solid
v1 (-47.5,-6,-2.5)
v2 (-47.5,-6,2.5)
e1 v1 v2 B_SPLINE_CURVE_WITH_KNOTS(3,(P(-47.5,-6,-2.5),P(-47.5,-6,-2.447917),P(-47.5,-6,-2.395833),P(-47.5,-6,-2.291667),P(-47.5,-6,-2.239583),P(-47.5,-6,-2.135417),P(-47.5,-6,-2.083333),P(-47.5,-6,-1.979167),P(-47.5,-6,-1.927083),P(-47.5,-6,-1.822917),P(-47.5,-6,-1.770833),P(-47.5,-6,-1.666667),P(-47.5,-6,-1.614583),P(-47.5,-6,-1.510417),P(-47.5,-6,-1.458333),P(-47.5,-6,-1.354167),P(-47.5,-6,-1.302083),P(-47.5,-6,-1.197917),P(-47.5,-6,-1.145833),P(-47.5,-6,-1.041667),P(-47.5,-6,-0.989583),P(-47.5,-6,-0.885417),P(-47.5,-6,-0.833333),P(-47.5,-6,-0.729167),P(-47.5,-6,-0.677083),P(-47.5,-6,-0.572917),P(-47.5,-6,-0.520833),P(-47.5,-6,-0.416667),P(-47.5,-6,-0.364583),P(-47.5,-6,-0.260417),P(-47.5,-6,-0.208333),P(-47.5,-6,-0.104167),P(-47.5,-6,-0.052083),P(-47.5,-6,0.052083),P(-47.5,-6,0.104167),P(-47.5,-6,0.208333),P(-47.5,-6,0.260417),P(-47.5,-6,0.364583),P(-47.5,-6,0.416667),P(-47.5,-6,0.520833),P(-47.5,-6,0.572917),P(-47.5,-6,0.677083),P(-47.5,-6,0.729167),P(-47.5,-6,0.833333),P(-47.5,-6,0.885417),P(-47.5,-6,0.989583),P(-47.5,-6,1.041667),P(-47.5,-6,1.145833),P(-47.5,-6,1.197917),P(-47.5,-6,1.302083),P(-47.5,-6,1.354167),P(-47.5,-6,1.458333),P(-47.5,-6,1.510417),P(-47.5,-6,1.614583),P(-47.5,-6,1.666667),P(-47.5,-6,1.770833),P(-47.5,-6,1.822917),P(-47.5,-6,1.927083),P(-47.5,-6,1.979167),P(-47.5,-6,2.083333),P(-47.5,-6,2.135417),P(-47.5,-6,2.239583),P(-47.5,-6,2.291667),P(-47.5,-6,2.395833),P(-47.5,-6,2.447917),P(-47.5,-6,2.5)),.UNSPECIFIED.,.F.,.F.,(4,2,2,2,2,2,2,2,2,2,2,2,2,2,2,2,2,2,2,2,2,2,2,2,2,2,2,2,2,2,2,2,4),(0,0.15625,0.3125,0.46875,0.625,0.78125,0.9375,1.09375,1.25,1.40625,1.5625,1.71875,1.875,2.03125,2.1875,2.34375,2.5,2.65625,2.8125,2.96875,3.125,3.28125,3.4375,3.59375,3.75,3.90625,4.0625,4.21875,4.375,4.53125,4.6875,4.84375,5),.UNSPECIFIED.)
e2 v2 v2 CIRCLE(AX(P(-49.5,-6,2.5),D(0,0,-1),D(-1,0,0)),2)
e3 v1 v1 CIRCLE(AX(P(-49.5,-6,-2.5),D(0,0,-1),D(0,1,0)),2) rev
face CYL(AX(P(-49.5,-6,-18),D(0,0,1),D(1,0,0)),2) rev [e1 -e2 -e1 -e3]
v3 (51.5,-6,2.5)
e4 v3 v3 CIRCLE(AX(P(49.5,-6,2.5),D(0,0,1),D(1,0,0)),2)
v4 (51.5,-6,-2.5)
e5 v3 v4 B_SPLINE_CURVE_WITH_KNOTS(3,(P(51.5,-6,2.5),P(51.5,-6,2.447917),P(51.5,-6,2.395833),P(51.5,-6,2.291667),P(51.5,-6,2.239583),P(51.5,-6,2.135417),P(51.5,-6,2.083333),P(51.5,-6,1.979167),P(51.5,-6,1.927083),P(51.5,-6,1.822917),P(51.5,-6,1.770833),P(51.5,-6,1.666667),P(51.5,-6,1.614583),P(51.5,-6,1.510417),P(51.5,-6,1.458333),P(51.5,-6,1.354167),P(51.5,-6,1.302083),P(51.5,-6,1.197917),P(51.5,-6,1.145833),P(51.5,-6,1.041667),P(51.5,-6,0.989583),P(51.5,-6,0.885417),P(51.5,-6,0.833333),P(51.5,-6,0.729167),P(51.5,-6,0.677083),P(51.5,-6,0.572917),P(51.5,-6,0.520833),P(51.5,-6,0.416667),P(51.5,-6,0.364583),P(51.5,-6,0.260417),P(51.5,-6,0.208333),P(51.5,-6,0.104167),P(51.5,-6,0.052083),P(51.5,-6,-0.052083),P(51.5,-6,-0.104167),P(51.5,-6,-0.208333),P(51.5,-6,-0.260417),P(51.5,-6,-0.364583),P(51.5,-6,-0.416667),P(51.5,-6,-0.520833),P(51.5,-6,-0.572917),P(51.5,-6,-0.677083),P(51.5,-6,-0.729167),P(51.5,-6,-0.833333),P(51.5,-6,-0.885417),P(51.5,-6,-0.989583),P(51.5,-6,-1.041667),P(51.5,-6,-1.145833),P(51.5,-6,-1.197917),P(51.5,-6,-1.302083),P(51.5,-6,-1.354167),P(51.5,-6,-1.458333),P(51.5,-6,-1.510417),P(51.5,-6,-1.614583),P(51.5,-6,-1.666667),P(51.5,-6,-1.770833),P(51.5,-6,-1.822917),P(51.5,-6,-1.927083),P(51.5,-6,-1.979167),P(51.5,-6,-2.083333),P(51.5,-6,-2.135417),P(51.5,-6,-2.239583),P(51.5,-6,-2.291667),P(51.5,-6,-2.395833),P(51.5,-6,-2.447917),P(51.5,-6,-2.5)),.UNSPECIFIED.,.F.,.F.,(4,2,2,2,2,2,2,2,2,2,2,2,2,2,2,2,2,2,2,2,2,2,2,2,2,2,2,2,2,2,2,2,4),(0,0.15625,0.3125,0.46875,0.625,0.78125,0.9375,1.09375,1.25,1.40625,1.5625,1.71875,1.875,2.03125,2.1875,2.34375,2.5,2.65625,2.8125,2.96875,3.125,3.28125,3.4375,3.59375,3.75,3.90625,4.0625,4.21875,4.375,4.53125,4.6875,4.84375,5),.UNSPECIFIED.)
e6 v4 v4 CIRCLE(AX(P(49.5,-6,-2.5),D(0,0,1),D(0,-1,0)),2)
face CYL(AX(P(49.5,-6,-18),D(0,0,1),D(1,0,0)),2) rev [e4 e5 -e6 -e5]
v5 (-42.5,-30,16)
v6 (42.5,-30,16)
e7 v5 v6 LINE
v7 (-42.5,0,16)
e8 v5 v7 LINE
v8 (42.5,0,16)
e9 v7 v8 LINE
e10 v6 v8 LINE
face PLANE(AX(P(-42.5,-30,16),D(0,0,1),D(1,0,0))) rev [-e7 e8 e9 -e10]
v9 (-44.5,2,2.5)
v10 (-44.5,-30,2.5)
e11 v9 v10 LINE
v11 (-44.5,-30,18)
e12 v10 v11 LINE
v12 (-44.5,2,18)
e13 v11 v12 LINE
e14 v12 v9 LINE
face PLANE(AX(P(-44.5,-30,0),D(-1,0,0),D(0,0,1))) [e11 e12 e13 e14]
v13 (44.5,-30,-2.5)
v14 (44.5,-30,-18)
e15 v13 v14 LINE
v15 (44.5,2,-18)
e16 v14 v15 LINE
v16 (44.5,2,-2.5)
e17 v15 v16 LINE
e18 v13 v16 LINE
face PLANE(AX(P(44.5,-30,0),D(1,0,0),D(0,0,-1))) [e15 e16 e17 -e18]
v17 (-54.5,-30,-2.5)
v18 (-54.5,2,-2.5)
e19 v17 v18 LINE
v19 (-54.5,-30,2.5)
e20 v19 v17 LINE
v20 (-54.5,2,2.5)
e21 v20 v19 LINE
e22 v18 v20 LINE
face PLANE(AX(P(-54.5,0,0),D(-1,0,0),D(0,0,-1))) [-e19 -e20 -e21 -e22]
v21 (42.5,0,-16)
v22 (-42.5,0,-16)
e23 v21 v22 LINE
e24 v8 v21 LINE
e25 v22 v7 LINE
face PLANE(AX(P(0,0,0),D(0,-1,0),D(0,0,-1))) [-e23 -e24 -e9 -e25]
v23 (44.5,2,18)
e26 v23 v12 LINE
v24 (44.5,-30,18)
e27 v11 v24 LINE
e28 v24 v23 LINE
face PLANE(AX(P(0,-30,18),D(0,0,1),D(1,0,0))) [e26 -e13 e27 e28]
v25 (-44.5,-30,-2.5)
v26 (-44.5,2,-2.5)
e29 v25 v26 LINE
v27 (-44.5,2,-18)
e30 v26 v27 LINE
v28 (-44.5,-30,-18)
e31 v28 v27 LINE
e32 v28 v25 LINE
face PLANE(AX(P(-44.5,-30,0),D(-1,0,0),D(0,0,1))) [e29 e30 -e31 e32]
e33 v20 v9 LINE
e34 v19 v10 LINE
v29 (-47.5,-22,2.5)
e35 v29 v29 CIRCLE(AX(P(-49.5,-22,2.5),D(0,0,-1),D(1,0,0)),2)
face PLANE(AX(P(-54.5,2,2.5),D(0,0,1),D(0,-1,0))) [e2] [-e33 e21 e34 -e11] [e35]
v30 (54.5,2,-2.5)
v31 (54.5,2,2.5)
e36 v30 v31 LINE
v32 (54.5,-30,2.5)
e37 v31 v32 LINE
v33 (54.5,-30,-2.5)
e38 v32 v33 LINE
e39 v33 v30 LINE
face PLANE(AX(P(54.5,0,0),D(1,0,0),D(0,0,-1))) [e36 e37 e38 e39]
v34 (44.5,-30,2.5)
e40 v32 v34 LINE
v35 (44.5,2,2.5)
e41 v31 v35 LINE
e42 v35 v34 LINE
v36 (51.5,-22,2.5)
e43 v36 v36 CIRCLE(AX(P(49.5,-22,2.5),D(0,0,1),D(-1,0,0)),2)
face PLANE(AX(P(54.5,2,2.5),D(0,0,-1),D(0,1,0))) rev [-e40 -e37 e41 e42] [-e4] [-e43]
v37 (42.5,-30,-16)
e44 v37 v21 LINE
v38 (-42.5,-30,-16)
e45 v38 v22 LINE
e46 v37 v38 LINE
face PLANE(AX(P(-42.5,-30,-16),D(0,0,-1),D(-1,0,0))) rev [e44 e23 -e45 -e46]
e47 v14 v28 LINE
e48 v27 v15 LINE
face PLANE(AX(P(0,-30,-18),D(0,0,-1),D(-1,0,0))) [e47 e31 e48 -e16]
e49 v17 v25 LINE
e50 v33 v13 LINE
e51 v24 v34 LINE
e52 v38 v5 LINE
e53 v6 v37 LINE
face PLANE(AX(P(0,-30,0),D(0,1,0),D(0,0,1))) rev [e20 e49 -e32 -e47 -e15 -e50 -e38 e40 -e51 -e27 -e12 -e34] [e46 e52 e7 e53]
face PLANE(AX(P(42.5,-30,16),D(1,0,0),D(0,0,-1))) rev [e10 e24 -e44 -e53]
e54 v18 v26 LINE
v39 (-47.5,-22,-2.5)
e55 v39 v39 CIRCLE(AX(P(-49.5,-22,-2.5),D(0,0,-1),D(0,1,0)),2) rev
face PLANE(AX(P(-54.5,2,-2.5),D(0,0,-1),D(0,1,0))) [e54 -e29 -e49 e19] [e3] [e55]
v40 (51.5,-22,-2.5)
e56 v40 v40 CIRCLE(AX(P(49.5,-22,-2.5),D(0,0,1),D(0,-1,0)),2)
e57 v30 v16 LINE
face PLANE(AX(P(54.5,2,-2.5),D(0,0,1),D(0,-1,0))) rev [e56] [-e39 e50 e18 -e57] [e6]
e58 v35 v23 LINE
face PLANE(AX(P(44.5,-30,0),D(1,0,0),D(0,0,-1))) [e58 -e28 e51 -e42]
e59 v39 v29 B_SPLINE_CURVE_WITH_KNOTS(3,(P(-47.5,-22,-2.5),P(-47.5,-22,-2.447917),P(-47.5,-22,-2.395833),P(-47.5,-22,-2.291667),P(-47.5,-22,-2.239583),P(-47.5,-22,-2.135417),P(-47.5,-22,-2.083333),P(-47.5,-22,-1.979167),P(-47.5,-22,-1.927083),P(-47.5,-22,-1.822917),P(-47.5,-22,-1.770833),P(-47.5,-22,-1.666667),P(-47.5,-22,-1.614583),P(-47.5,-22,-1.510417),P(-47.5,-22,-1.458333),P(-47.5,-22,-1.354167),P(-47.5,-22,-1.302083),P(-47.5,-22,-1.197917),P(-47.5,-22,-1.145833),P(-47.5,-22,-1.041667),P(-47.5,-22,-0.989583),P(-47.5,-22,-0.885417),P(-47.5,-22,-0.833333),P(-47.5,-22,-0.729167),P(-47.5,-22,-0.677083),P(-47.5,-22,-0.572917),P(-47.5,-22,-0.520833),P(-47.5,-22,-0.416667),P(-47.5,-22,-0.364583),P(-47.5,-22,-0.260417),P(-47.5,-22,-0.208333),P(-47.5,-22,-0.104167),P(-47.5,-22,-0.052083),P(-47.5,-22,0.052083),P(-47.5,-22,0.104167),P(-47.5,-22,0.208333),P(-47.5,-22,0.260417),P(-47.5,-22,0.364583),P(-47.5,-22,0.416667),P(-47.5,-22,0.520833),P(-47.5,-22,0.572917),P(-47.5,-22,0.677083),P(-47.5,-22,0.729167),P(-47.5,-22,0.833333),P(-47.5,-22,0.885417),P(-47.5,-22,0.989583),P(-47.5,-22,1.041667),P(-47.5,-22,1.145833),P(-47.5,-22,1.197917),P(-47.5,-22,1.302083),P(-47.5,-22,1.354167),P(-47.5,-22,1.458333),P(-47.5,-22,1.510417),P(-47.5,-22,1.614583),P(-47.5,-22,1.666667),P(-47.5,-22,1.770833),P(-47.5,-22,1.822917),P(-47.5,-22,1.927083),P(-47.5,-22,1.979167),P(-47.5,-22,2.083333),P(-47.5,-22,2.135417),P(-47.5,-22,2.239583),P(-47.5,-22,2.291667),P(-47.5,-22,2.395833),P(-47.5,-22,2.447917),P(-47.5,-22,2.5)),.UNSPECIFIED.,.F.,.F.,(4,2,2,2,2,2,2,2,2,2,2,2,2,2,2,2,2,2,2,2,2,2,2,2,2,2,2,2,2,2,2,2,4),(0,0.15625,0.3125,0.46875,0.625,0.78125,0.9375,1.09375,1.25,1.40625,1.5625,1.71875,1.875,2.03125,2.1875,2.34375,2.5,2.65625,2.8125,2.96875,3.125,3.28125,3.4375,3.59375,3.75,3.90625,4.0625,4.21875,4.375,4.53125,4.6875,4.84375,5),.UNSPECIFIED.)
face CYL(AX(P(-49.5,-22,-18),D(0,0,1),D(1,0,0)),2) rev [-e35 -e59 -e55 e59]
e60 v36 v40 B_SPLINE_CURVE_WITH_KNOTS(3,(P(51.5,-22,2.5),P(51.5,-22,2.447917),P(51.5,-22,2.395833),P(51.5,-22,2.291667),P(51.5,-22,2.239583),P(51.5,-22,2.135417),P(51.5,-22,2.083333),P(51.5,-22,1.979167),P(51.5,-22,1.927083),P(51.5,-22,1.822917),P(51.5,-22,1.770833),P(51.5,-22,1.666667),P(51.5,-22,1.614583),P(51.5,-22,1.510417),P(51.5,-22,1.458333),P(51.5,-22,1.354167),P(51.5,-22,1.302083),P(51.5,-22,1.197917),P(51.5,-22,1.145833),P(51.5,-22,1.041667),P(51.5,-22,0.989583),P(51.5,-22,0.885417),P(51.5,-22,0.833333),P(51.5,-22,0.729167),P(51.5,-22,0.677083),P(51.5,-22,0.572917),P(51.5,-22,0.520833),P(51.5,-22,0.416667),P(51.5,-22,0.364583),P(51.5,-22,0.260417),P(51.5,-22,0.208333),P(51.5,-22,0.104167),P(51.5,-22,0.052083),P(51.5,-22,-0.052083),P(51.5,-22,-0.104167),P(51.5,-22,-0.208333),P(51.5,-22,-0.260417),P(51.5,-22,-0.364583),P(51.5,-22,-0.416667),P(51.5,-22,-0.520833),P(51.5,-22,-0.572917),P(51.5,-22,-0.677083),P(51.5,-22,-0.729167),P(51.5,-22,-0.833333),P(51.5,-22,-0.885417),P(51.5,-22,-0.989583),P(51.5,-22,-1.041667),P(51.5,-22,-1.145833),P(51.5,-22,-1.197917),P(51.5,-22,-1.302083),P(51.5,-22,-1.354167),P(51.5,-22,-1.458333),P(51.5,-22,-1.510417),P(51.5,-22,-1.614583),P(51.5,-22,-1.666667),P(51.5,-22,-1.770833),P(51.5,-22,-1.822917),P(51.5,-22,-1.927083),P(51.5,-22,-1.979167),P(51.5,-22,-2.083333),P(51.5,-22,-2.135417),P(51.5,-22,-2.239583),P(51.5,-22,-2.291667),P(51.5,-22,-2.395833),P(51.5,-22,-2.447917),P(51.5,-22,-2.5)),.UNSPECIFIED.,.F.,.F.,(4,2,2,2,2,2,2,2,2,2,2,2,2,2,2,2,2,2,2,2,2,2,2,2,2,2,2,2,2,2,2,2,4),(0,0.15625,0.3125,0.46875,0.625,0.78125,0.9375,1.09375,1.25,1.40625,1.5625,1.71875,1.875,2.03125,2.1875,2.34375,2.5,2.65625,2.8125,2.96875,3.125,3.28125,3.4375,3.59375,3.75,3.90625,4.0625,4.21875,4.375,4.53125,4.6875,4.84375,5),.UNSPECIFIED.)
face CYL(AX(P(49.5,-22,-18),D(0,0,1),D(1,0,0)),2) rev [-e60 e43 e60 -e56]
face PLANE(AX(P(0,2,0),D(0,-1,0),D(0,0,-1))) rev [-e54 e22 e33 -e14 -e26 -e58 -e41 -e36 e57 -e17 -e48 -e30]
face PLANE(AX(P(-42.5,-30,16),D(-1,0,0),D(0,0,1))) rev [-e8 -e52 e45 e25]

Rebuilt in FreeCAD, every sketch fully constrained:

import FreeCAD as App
import Part
import Sketcher
from FreeCAD import Vector
Q = App.Units.Quantity

doc = App.newDocument("Part")
body = doc.addObject("PartDesign::Body", "Body")

# Sketch on XZ plane
sketch1 = body.newObject("Sketcher::SketchObject", "Sketch")
sketch1.AttachmentSupport = (doc.getObject("XZ_Plane"), [""])
sketch1.MapMode = "FlatFace"
sketch1.addGeometry([
    Part.LineSegment(Vector(-42.5, -16, 0), Vector(-42.5, 16, 0)),
    Part.LineSegment(Vector(-42.5, 16, 0), Vector(42.5, 16, 0)),
    Part.LineSegment(Vector(42.5, 16, 0), Vector(42.5, -16, 0)),
    Part.LineSegment(Vector(42.5, -16, 0), Vector(-42.5, -16, 0)),
], False)
sketch1.addConstraint([
    Sketcher.Constraint("Coincident", 0, 2, 1, 1),
    Sketcher.Constraint("Coincident", 1, 2, 2, 1),
    Sketcher.Constraint("Coincident", 2, 2, 3, 1),
    Sketcher.Constraint("Coincident", 3, 2, 0, 1),
    Sketcher.Constraint("Vertical", 0),
    Sketcher.Constraint("Horizontal", 1),
    Sketcher.Constraint("Vertical", 2),
    Sketcher.Constraint("Horizontal", 3),
    Sketcher.Constraint("Symmetric", 0, 2, 2, 2, -1, 1),
    Sketcher.Constraint("DistanceX", 1, 1, 1, 2, Q("85 mm")),
    Sketcher.Constraint("DistanceY", 0, 1, 0, 2, Q("32 mm")),
])
pad1 = body.newObject("PartDesign::Pad", "Pad")
pad1.Profile = sketch1
pad1.Length = 2
pad1.Reversed = True

# Sketch on XZ plane
sketch2 = body.newObject("Sketcher::SketchObject", "Sketch001")
sketch2.AttachmentSupport = (doc.getObject("XZ_Plane"), [""])
sketch2.MapMode = "FlatFace"
sketch2.addGeometry([
    Part.LineSegment(Vector(-44.5, -18, 0), Vector(-44.5, 18, 0)),  # 0
    Part.LineSegment(Vector(-44.5, 18, 0), Vector(44.5, 18, 0)),  # 1
    Part.LineSegment(Vector(44.5, 18, 0), Vector(44.5, -18, 0)),  # 2
    Part.LineSegment(Vector(44.5, -18, 0), Vector(-44.5, -18, 0)),  # 3
    Part.LineSegment(Vector(42.5, 16, 0), Vector(-42.5, 16, 0)),  # 4
    Part.LineSegment(Vector(-42.5, 16, 0), Vector(-42.5, -16, 0)),  # 5
    Part.LineSegment(Vector(-42.5, -16, 0), Vector(42.5, -16, 0)),  # 6
    Part.LineSegment(Vector(42.5, -16, 0), Vector(42.5, 16, 0)),  # 7
], False)
sketch2.addConstraint([
    Sketcher.Constraint("Coincident", 0, 2, 1, 1),
    Sketcher.Constraint("Coincident", 1, 2, 2, 1),
    Sketcher.Constraint("Coincident", 2, 2, 3, 1),
    Sketcher.Constraint("Coincident", 3, 2, 0, 1),
    Sketcher.Constraint("Coincident", 4, 2, 5, 1),
    Sketcher.Constraint("Coincident", 5, 2, 6, 1),
    Sketcher.Constraint("Coincident", 6, 2, 7, 1),
    Sketcher.Constraint("Coincident", 7, 2, 4, 1),
    Sketcher.Constraint("Vertical", 0),
    Sketcher.Constraint("Horizontal", 1),
    Sketcher.Constraint("Vertical", 2),
    Sketcher.Constraint("Horizontal", 3),
    Sketcher.Constraint("Horizontal", 4),
    Sketcher.Constraint("Vertical", 5),
    Sketcher.Constraint("Horizontal", 6),
    Sketcher.Constraint("Vertical", 7),
    Sketcher.Constraint("Symmetric", 0, 2, 2, 2, -1, 1),
    Sketcher.Constraint("Symmetric", 4, 2, 6, 2, -1, 1),
    Sketcher.Constraint("DistanceX", 1, 1, 1, 2, Q("89 mm")),
    Sketcher.Constraint("DistanceX", 4, 2, 4, 1, Q("85 mm")),
    Sketcher.Constraint("DistanceY", 0, 1, 0, 2, Q("36 mm")),
    Sketcher.Constraint("DistanceY", 5, 2, 5, 1, Q("32 mm")),
])
pad2 = body.newObject("PartDesign::Pad", "Pad001")
pad2.Profile = sketch2
pad2.Type = "TwoLengths"
pad2.Length = 2
pad2.Length2 = 30
pad2.Reversed = True

# Sketch on YZ plane
sketch3 = body.newObject("Sketcher::SketchObject", "Sketch002")
sketch3.AttachmentSupport = (doc.getObject("YZ_Plane"), [""])
sketch3.MapMode = "FlatFace"
sketch3.AttachmentOffset = App.Placement(Vector(0, 0, 44.5), App.Rotation())
sketch3.addGeometry([
    Part.LineSegment(Vector(2, 2.5, 0), Vector(-30, 2.5, 0)),
    Part.LineSegment(Vector(-30, 2.5, 0), Vector(-30, -2.5, 0)),
    Part.LineSegment(Vector(-30, -2.5, 0), Vector(2, -2.5, 0)),
    Part.LineSegment(Vector(2, -2.5, 0), Vector(2, 2.5, 0)),
], False)
sketch3.addConstraint([
    Sketcher.Constraint("Coincident", 0, 2, 1, 1),
    Sketcher.Constraint("Coincident", 1, 2, 2, 1),
    Sketcher.Constraint("Coincident", 2, 2, 3, 1),
    Sketcher.Constraint("Coincident", 3, 2, 0, 1),
    Sketcher.Constraint("Horizontal", 0),
    Sketcher.Constraint("Vertical", 1),
    Sketcher.Constraint("Horizontal", 2),
    Sketcher.Constraint("Vertical", 3),
    Sketcher.Constraint("DistanceX", 0, 2, 0, 1, Q("32 mm")),
    Sketcher.Constraint("DistanceY", 1, 2, 1, 1, Q("5 mm")),
    Sketcher.Constraint("DistanceX", 0, 2, -1, 1, Q("30 mm")),
    Sketcher.Constraint("DistanceY", -1, 1, 0, 2, Q("2.5 mm")),
])
pad3 = body.newObject("PartDesign::Pad", "Pad002")
pad3.Profile = sketch3
pad3.Length = 10

# Sketch on XY plane
sketch4 = body.newObject("Sketcher::SketchObject", "Sketch003")
sketch4.AttachmentSupport = (doc.getObject("XY_Plane"), [""])
sketch4.MapMode = "FlatFace"
sketch4.AttachmentOffset = App.Placement(Vector(0, 0, 2.5), App.Rotation())
sketch4.addGeometry([
    Part.Circle(Vector(49.5, -6, 0), Vector(0, 0, 1), 2),
    Part.Circle(Vector(49.5, -22, 0), Vector(0, 0, 1), 2),
], False)
sketch4.addConstraint([
    Sketcher.Constraint("Equal", 0, 1),
    Sketcher.Constraint("Vertical", 0, 3, 1, 3),
    Sketcher.Constraint("Diameter", 0, Q("4 mm")),
    Sketcher.Constraint("DistanceY", 0, 3, -1, 1, Q("6 mm")),
    Sketcher.Constraint("DistanceY", 1, 3, -1, 1, Q("22 mm")),
    Sketcher.Constraint("DistanceX", -1, 1, 0, 3, Q("49.5 mm")),
])
pocket1 = body.newObject("PartDesign::Pocket", "Pocket")
pocket1.Profile = sketch4
pocket1.Type = "ThroughAll"
doc.recompute()

mirrored = body.newObject("PartDesign::Mirrored", "Mirrored")
mirrored.Originals = [pad3, pocket1]
mirrored.MirrorPlane = (doc.getObject("YZ_Plane"), [""])
body.Tip = mirrored

doc.recompute()
